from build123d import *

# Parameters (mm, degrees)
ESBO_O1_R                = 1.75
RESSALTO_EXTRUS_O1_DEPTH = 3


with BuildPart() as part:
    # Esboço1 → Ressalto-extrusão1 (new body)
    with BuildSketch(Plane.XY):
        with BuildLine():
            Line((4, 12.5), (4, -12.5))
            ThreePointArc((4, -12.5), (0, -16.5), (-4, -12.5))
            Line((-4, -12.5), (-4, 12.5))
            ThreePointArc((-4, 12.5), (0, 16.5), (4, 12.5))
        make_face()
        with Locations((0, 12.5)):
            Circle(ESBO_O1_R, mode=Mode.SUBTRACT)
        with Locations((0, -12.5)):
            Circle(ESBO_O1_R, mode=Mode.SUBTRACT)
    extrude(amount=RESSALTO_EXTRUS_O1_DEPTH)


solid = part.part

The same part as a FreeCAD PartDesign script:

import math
import FreeCAD as App
import Part
import Sketcher

V = App.Vector

doc = App.newDocument("Part")
params = doc.addObject("Spreadsheet::Sheet", "Params")
for row, (alias, value) in enumerate([
    ("sketch1_radius", "4 mm"),
    ("sketch1_diameter", "3.5 mm"),
    ("sketch1_height", "25 mm"),
    ("pad1_length", "3 mm"),
], start=1):
    params.set(f"A{row}", alias)
    params.set(f"B{row}", "=" + value)
    params.setAlias(f"B{row}", alias)

body = doc.addObject("PartDesign::Body", "Body")

sketch1 = body.newObject("Sketcher::SketchObject", "Sketch")
sketch1.AttachmentSupport = (doc.getObject("XY_Plane"), [""])
sketch1.MapMode = "FlatFace"
sketch1.addGeometry([
    Part.LineSegment(V(4, -12.5, 0), V(4, 12.5, 0)),
    Part.ArcOfCircle(Part.Circle(V(0, 12.5, 0), V(0, 0, 1), 4), math.radians(0), math.radians(180)),
    Part.LineSegment(V(-4, 12.5, 0), V(-4, -12.5, 0)),
    Part.ArcOfCircle(Part.Circle(V(0, -12.5, 0), V(0, 0, 1), 4), math.radians(180), math.radians(360)),
    Part.Circle(V(0, -12.5, 0), V(0, 0, 1), 1.8),
    Part.Circle(V(0, 12.5, 0), V(0, 0, 1), 1.8),
], False)
sketch1.addConstraint([
    Sketcher.Constraint("Tangent", 0, 2, 1, 1),
    Sketcher.Constraint("Tangent", 1, 2, 2, 1),
    Sketcher.Constraint("Tangent", 2, 2, 3, 1),
    Sketcher.Constraint("Tangent", 3, 2, 0, 1),
    Sketcher.Constraint("Vertical", 0),
    Sketcher.Constraint("Vertical", 2),
    Sketcher.Constraint("Coincident", 4, 3, 3, 3),
    Sketcher.Constraint("Coincident", 5, 3, 1, 3),
    Sketcher.Constraint("Equal", 4, 5),
    Sketcher.Constraint("Symmetric", 1, 3, 3, 3, -1, 1),
    Sketcher.Constraint("Radius", 1, 4.0),
    Sketcher.Constraint("Diameter", 4, 3.5),
    Sketcher.Constraint("DistanceY", 0, 1, 0, 2, 25.0),
])
sketch1.setExpression("Constraints[10]", "Params.sketch1_radius")
sketch1.setExpression("Constraints[11]", "Params.sketch1_diameter")
sketch1.setExpression("Constraints[12]", "Params.sketch1_height")
pad1 = body.newObject("PartDesign::Pad", "Pad")
pad1.Profile = sketch1
pad1.setExpression("Length", "Params.pad1_length")

doc.recompute()
